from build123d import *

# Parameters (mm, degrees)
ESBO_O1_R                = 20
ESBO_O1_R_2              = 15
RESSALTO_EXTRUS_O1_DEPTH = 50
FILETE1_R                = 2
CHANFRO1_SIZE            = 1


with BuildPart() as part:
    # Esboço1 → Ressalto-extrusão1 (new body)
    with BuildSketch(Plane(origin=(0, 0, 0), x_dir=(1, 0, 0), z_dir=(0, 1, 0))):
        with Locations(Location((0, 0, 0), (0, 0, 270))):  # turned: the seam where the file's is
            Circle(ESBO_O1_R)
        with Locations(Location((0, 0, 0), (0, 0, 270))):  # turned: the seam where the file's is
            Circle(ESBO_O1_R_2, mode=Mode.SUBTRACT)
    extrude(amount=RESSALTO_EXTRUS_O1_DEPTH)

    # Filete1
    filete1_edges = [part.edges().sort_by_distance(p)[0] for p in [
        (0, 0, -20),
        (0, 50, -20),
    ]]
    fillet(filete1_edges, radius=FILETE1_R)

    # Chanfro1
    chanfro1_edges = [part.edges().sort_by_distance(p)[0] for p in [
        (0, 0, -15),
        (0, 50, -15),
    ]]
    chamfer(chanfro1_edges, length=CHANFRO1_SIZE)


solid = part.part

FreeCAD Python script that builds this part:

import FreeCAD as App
import Part
import Sketcher

V = App.Vector


def edges_at(feature, points):
    """Names of the edges that pass closest to the given points."""
    edges = feature.Shape.Edges
    near = lambda p: min(range(len(edges)), key=lambda i: edges[i].distToShape(Part.Vertex(*p))[0])
    return sorted({f"Edge{near(p) + 1}" for p in points})

doc = App.newDocument("Part")
params = doc.addObject("Spreadsheet::Sheet", "Params")
for row, (alias, value) in enumerate([
    ("sketch1_diameter", "40 mm"),
    ("sketch1_diameter2", "30 mm"),
    ("pad1_length", "50 mm"),
    ("fillet_radius", "2 mm"),
    ("chamfer_size", "1 mm"),
], start=1):
    params.set(f"A{row}", alias)
    params.set(f"B{row}", "=" + value)
    params.setAlias(f"B{row}", alias)

body = doc.addObject("PartDesign::Body", "Body")

sketch1 = body.newObject("Sketcher::SketchObject", "Sketch")
sketch1.AttachmentSupport = (doc.getObject("XZ_Plane"), [""])
sketch1.MapMode = "FlatFace"
sketch1.addGeometry([
    Part.Circle(V(0, 0, 0), V(0, 0, 1), 20),
    Part.Circle(V(0, 0, 0), V(0, 0, 1), 15),
], False)
sketch1.addConstraint([
    Sketcher.Constraint("Coincident", 0, 3, -1, 1),
    Sketcher.Constraint("Coincident", 1, 3, -1, 1),
    Sketcher.Constraint("Diameter", 0, 40.0),
    Sketcher.Constraint("Diameter", 1, 30.0),
])
sketch1.setExpression("Constraints[2]", "Params.sketch1_diameter")
sketch1.setExpression("Constraints[3]", "Params.sketch1_diameter2")
pad1 = body.newObject("PartDesign::Pad", "Pad")
pad1.Profile = sketch1
pad1.setExpression("Length", "Params.pad1_length")
pad1.Reversed = True
doc.recompute()

fillet = body.newObject("PartDesign::Fillet", "Fillet")
fillet.Base = (pad1, edges_at(pad1, [(0, 0, -20), (0, 50, -20)]))
fillet.setExpression("Radius", "Params.fillet_radius")
doc.recompute()

chamfer = body.newObject("PartDesign::Chamfer", "Chamfer")
chamfer.Base = (fillet, edges_at(fillet, [(0, 0, -15), (0, 50, -15)]))
chamfer.setExpression("Size", "Params.chamfer_size")

doc.recompute()
